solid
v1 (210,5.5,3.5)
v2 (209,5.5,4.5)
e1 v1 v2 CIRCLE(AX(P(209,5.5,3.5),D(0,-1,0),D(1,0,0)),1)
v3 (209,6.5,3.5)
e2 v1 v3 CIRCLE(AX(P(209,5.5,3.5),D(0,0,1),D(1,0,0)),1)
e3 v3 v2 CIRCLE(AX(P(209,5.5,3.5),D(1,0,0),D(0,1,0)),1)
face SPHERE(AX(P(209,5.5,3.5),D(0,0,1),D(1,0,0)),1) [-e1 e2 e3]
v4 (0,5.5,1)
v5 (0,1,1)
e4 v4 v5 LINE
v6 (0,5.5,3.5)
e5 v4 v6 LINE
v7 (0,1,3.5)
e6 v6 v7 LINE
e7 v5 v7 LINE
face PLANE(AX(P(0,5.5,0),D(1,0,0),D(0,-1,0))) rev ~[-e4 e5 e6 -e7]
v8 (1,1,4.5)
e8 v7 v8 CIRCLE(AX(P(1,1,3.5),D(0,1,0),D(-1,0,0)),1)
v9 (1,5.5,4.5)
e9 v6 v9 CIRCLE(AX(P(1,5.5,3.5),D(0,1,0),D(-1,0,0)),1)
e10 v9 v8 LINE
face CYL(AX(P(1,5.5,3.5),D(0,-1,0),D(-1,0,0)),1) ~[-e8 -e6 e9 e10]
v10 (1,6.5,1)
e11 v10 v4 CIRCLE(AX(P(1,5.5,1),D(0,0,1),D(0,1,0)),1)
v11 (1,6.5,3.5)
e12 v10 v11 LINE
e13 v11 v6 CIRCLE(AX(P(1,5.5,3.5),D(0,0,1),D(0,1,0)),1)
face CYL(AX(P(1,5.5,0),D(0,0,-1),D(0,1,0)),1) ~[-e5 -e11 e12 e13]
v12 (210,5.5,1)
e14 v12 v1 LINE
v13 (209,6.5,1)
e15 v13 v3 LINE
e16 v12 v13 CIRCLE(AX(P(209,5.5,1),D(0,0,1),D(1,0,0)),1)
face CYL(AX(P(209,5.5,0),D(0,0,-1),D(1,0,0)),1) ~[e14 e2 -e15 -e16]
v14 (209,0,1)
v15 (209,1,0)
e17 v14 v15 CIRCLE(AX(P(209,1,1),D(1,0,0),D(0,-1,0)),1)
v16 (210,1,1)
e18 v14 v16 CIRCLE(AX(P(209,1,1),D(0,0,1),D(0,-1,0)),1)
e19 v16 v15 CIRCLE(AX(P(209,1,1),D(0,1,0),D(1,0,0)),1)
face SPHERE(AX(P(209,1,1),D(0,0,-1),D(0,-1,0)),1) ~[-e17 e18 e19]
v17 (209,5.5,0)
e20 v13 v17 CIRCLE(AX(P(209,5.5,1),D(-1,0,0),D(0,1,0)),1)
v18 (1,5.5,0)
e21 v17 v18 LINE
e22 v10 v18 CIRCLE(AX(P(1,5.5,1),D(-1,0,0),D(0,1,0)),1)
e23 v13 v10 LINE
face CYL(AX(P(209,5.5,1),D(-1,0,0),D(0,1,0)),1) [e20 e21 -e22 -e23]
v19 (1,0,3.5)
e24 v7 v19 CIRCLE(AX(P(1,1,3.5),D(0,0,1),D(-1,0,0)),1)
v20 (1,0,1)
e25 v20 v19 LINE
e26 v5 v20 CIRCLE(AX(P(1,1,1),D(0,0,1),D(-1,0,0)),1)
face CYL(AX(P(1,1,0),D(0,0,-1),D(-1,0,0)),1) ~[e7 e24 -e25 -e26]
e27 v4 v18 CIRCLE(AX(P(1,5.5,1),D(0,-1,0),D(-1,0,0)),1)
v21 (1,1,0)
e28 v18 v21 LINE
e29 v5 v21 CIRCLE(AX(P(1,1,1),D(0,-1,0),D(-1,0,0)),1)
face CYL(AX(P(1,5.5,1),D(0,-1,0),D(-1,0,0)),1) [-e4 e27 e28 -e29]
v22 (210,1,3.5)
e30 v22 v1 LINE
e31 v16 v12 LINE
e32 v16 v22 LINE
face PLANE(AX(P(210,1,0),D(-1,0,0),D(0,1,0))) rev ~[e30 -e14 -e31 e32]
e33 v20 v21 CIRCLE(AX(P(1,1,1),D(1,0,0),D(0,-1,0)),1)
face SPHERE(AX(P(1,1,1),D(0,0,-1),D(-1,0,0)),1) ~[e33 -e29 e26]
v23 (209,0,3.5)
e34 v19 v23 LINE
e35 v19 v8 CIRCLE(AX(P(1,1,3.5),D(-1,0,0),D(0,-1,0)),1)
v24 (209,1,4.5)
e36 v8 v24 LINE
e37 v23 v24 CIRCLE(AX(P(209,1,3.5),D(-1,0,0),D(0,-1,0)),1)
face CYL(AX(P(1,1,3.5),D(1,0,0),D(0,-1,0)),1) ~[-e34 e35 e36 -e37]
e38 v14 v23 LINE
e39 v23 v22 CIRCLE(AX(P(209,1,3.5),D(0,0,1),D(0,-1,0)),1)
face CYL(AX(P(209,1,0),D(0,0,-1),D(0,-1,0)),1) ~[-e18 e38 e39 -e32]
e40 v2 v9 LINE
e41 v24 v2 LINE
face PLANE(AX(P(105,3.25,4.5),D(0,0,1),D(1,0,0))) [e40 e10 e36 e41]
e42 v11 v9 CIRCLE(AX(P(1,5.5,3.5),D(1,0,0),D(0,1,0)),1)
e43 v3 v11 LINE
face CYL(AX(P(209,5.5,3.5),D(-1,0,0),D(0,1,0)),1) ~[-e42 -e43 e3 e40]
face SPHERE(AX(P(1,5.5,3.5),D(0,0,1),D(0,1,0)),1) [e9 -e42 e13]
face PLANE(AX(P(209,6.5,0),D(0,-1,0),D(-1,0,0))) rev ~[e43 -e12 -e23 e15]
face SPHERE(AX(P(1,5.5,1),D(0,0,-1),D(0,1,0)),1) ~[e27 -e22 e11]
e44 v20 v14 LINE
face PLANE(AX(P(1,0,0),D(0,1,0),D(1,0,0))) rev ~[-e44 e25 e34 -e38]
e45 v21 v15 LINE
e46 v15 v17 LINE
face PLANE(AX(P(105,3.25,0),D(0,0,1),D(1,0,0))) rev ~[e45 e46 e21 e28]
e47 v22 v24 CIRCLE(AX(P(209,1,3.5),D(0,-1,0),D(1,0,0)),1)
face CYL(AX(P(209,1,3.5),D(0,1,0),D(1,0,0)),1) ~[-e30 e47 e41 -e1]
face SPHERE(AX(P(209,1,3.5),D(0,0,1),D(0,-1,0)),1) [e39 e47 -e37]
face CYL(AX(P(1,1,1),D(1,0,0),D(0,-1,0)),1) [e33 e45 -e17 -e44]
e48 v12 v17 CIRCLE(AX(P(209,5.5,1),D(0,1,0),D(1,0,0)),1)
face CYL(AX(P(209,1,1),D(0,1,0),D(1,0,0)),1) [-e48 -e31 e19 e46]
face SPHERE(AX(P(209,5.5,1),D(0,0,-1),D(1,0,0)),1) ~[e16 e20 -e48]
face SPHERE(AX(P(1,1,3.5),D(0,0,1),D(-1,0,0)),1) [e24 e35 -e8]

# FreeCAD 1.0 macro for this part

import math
import FreeCAD as App
import Part
import Sketcher
from FreeCAD import Vector


def edges_at(feature, points):
    """Names of the edges that pass closest to the given points."""
    edges = feature.Shape.Edges
    near = lambda p: min(range(len(edges)), key=lambda i: edges[i].distToShape(Part.Vertex(*p))[0])
    return sorted({f"Edge{near(p) + 1}" for p in points})

doc = App.newDocument("Part")
body = doc.addObject("PartDesign::Body", "Body")

# Sketch on XY plane
sketch1 = body.newObject("Sketcher::SketchObject", "Sketch")
sketch1.AttachmentSupport = (doc.getObject("XY_Plane"), [""])
sketch1.MapMode = "FlatFace"
sketch1.addGeometry(Part.ArcOfCircle(Part.Circle(Vector(1, 1, 0), Vector(0, 0, 1), 1), math.radians(180), math.radians(270)), False)
sketch1.addGeometry(Part.LineSegment(Vector(1, 0, 0), Vector(209, 0, 0)), False)
sketch1.addGeometry(Part.ArcOfCircle(Part.Circle(Vector(209, 1, 0), Vector(0, 0, 1), 1), math.radians(-90), math.radians(0)), False)
sketch1.addGeometry(Part.LineSegment(Vector(210, 1, 0), Vector(210, 5.5, 0)), False)
sketch1.addGeometry(Part.ArcOfCircle(Part.Circle(Vector(209, 5.5, 0), Vector(0, 0, 1), 1), math.radians(0), math.radians(90)), False)
sketch1.addGeometry(Part.LineSegment(Vector(209, 6.5, 0), Vector(1, 6.5, 0)), False)
sketch1.addGeometry(Part.ArcOfCircle(Part.Circle(Vector(1, 5.5, 0), Vector(0, 0, 1), 1), math.radians(90), math.radians(180)), False)
sketch1.addGeometry(Part.LineSegment(Vector(0, 5.5, 0), Vector(0, 1, 0)), False)
sketch1.addConstraint(Sketcher.Constraint("Tangent", 0, 2, 1, 1))
sketch1.addConstraint(Sketcher.Constraint("Tangent", 1, 2, 2, 1))
sketch1.addConstraint(Sketcher.Constraint("Tangent", 2, 2, 3, 1))
sketch1.addConstraint(Sketcher.Constraint("Tangent", 3, 2, 4, 1))
sketch1.addConstraint(Sketcher.Constraint("Tangent", 4, 2, 5, 1))
sketch1.addConstraint(Sketcher.Constraint("Tangent", 5, 2, 6, 1))
sketch1.addConstraint(Sketcher.Constraint("Tangent", 6, 2, 7, 1))
sketch1.addConstraint(Sketcher.Constraint("Tangent", 7, 2, 0, 1))
sketch1.addConstraint(Sketcher.Constraint("Horizontal", 1))
sketch1.addConstraint(Sketcher.Constraint("Vertical", 3))
sketch1.addConstraint(Sketcher.Constraint("Horizontal", 5))
sketch1.addConstraint(Sketcher.Constraint("Vertical", 7))
sketch1.addConstraint(Sketcher.Constraint("Equal", 0, 2))
sketch1.addConstraint(Sketcher.Constraint("Equal", 2, 4))
sketch1.addConstraint(Sketcher.Constraint("Equal", 4, 6))
sketch1.addConstraint(Sketcher.Constraint("PointOnObject", 0, 2, -1))
sketch1.addConstraint(Sketcher.Constraint("PointOnObject", 6, 2, -2))
sketch1.addConstraint(Sketcher.Constraint("Radius", 0, 1.0))
sketch1.addConstraint(Sketcher.Constraint("DistanceX", 1, 1, 1, 2, 208.0))
sketch1.addConstraint(Sketcher.Constraint("DistanceY", 3, 1, 3, 2, 4.5))
pad1 = body.newObject("PartDesign::Pad", "Pad")
pad1.Profile = sketch1
pad1.Length = 4.5
doc.recompute()

fillet = body.newObject("PartDesign::Fillet", "Fillet")
fillet.Base = (pad1, edges_at(pad1, [(0, 3.25, 4.5), (0, 3.25, 0)]))
fillet.Radius = 1

doc.recompute()
